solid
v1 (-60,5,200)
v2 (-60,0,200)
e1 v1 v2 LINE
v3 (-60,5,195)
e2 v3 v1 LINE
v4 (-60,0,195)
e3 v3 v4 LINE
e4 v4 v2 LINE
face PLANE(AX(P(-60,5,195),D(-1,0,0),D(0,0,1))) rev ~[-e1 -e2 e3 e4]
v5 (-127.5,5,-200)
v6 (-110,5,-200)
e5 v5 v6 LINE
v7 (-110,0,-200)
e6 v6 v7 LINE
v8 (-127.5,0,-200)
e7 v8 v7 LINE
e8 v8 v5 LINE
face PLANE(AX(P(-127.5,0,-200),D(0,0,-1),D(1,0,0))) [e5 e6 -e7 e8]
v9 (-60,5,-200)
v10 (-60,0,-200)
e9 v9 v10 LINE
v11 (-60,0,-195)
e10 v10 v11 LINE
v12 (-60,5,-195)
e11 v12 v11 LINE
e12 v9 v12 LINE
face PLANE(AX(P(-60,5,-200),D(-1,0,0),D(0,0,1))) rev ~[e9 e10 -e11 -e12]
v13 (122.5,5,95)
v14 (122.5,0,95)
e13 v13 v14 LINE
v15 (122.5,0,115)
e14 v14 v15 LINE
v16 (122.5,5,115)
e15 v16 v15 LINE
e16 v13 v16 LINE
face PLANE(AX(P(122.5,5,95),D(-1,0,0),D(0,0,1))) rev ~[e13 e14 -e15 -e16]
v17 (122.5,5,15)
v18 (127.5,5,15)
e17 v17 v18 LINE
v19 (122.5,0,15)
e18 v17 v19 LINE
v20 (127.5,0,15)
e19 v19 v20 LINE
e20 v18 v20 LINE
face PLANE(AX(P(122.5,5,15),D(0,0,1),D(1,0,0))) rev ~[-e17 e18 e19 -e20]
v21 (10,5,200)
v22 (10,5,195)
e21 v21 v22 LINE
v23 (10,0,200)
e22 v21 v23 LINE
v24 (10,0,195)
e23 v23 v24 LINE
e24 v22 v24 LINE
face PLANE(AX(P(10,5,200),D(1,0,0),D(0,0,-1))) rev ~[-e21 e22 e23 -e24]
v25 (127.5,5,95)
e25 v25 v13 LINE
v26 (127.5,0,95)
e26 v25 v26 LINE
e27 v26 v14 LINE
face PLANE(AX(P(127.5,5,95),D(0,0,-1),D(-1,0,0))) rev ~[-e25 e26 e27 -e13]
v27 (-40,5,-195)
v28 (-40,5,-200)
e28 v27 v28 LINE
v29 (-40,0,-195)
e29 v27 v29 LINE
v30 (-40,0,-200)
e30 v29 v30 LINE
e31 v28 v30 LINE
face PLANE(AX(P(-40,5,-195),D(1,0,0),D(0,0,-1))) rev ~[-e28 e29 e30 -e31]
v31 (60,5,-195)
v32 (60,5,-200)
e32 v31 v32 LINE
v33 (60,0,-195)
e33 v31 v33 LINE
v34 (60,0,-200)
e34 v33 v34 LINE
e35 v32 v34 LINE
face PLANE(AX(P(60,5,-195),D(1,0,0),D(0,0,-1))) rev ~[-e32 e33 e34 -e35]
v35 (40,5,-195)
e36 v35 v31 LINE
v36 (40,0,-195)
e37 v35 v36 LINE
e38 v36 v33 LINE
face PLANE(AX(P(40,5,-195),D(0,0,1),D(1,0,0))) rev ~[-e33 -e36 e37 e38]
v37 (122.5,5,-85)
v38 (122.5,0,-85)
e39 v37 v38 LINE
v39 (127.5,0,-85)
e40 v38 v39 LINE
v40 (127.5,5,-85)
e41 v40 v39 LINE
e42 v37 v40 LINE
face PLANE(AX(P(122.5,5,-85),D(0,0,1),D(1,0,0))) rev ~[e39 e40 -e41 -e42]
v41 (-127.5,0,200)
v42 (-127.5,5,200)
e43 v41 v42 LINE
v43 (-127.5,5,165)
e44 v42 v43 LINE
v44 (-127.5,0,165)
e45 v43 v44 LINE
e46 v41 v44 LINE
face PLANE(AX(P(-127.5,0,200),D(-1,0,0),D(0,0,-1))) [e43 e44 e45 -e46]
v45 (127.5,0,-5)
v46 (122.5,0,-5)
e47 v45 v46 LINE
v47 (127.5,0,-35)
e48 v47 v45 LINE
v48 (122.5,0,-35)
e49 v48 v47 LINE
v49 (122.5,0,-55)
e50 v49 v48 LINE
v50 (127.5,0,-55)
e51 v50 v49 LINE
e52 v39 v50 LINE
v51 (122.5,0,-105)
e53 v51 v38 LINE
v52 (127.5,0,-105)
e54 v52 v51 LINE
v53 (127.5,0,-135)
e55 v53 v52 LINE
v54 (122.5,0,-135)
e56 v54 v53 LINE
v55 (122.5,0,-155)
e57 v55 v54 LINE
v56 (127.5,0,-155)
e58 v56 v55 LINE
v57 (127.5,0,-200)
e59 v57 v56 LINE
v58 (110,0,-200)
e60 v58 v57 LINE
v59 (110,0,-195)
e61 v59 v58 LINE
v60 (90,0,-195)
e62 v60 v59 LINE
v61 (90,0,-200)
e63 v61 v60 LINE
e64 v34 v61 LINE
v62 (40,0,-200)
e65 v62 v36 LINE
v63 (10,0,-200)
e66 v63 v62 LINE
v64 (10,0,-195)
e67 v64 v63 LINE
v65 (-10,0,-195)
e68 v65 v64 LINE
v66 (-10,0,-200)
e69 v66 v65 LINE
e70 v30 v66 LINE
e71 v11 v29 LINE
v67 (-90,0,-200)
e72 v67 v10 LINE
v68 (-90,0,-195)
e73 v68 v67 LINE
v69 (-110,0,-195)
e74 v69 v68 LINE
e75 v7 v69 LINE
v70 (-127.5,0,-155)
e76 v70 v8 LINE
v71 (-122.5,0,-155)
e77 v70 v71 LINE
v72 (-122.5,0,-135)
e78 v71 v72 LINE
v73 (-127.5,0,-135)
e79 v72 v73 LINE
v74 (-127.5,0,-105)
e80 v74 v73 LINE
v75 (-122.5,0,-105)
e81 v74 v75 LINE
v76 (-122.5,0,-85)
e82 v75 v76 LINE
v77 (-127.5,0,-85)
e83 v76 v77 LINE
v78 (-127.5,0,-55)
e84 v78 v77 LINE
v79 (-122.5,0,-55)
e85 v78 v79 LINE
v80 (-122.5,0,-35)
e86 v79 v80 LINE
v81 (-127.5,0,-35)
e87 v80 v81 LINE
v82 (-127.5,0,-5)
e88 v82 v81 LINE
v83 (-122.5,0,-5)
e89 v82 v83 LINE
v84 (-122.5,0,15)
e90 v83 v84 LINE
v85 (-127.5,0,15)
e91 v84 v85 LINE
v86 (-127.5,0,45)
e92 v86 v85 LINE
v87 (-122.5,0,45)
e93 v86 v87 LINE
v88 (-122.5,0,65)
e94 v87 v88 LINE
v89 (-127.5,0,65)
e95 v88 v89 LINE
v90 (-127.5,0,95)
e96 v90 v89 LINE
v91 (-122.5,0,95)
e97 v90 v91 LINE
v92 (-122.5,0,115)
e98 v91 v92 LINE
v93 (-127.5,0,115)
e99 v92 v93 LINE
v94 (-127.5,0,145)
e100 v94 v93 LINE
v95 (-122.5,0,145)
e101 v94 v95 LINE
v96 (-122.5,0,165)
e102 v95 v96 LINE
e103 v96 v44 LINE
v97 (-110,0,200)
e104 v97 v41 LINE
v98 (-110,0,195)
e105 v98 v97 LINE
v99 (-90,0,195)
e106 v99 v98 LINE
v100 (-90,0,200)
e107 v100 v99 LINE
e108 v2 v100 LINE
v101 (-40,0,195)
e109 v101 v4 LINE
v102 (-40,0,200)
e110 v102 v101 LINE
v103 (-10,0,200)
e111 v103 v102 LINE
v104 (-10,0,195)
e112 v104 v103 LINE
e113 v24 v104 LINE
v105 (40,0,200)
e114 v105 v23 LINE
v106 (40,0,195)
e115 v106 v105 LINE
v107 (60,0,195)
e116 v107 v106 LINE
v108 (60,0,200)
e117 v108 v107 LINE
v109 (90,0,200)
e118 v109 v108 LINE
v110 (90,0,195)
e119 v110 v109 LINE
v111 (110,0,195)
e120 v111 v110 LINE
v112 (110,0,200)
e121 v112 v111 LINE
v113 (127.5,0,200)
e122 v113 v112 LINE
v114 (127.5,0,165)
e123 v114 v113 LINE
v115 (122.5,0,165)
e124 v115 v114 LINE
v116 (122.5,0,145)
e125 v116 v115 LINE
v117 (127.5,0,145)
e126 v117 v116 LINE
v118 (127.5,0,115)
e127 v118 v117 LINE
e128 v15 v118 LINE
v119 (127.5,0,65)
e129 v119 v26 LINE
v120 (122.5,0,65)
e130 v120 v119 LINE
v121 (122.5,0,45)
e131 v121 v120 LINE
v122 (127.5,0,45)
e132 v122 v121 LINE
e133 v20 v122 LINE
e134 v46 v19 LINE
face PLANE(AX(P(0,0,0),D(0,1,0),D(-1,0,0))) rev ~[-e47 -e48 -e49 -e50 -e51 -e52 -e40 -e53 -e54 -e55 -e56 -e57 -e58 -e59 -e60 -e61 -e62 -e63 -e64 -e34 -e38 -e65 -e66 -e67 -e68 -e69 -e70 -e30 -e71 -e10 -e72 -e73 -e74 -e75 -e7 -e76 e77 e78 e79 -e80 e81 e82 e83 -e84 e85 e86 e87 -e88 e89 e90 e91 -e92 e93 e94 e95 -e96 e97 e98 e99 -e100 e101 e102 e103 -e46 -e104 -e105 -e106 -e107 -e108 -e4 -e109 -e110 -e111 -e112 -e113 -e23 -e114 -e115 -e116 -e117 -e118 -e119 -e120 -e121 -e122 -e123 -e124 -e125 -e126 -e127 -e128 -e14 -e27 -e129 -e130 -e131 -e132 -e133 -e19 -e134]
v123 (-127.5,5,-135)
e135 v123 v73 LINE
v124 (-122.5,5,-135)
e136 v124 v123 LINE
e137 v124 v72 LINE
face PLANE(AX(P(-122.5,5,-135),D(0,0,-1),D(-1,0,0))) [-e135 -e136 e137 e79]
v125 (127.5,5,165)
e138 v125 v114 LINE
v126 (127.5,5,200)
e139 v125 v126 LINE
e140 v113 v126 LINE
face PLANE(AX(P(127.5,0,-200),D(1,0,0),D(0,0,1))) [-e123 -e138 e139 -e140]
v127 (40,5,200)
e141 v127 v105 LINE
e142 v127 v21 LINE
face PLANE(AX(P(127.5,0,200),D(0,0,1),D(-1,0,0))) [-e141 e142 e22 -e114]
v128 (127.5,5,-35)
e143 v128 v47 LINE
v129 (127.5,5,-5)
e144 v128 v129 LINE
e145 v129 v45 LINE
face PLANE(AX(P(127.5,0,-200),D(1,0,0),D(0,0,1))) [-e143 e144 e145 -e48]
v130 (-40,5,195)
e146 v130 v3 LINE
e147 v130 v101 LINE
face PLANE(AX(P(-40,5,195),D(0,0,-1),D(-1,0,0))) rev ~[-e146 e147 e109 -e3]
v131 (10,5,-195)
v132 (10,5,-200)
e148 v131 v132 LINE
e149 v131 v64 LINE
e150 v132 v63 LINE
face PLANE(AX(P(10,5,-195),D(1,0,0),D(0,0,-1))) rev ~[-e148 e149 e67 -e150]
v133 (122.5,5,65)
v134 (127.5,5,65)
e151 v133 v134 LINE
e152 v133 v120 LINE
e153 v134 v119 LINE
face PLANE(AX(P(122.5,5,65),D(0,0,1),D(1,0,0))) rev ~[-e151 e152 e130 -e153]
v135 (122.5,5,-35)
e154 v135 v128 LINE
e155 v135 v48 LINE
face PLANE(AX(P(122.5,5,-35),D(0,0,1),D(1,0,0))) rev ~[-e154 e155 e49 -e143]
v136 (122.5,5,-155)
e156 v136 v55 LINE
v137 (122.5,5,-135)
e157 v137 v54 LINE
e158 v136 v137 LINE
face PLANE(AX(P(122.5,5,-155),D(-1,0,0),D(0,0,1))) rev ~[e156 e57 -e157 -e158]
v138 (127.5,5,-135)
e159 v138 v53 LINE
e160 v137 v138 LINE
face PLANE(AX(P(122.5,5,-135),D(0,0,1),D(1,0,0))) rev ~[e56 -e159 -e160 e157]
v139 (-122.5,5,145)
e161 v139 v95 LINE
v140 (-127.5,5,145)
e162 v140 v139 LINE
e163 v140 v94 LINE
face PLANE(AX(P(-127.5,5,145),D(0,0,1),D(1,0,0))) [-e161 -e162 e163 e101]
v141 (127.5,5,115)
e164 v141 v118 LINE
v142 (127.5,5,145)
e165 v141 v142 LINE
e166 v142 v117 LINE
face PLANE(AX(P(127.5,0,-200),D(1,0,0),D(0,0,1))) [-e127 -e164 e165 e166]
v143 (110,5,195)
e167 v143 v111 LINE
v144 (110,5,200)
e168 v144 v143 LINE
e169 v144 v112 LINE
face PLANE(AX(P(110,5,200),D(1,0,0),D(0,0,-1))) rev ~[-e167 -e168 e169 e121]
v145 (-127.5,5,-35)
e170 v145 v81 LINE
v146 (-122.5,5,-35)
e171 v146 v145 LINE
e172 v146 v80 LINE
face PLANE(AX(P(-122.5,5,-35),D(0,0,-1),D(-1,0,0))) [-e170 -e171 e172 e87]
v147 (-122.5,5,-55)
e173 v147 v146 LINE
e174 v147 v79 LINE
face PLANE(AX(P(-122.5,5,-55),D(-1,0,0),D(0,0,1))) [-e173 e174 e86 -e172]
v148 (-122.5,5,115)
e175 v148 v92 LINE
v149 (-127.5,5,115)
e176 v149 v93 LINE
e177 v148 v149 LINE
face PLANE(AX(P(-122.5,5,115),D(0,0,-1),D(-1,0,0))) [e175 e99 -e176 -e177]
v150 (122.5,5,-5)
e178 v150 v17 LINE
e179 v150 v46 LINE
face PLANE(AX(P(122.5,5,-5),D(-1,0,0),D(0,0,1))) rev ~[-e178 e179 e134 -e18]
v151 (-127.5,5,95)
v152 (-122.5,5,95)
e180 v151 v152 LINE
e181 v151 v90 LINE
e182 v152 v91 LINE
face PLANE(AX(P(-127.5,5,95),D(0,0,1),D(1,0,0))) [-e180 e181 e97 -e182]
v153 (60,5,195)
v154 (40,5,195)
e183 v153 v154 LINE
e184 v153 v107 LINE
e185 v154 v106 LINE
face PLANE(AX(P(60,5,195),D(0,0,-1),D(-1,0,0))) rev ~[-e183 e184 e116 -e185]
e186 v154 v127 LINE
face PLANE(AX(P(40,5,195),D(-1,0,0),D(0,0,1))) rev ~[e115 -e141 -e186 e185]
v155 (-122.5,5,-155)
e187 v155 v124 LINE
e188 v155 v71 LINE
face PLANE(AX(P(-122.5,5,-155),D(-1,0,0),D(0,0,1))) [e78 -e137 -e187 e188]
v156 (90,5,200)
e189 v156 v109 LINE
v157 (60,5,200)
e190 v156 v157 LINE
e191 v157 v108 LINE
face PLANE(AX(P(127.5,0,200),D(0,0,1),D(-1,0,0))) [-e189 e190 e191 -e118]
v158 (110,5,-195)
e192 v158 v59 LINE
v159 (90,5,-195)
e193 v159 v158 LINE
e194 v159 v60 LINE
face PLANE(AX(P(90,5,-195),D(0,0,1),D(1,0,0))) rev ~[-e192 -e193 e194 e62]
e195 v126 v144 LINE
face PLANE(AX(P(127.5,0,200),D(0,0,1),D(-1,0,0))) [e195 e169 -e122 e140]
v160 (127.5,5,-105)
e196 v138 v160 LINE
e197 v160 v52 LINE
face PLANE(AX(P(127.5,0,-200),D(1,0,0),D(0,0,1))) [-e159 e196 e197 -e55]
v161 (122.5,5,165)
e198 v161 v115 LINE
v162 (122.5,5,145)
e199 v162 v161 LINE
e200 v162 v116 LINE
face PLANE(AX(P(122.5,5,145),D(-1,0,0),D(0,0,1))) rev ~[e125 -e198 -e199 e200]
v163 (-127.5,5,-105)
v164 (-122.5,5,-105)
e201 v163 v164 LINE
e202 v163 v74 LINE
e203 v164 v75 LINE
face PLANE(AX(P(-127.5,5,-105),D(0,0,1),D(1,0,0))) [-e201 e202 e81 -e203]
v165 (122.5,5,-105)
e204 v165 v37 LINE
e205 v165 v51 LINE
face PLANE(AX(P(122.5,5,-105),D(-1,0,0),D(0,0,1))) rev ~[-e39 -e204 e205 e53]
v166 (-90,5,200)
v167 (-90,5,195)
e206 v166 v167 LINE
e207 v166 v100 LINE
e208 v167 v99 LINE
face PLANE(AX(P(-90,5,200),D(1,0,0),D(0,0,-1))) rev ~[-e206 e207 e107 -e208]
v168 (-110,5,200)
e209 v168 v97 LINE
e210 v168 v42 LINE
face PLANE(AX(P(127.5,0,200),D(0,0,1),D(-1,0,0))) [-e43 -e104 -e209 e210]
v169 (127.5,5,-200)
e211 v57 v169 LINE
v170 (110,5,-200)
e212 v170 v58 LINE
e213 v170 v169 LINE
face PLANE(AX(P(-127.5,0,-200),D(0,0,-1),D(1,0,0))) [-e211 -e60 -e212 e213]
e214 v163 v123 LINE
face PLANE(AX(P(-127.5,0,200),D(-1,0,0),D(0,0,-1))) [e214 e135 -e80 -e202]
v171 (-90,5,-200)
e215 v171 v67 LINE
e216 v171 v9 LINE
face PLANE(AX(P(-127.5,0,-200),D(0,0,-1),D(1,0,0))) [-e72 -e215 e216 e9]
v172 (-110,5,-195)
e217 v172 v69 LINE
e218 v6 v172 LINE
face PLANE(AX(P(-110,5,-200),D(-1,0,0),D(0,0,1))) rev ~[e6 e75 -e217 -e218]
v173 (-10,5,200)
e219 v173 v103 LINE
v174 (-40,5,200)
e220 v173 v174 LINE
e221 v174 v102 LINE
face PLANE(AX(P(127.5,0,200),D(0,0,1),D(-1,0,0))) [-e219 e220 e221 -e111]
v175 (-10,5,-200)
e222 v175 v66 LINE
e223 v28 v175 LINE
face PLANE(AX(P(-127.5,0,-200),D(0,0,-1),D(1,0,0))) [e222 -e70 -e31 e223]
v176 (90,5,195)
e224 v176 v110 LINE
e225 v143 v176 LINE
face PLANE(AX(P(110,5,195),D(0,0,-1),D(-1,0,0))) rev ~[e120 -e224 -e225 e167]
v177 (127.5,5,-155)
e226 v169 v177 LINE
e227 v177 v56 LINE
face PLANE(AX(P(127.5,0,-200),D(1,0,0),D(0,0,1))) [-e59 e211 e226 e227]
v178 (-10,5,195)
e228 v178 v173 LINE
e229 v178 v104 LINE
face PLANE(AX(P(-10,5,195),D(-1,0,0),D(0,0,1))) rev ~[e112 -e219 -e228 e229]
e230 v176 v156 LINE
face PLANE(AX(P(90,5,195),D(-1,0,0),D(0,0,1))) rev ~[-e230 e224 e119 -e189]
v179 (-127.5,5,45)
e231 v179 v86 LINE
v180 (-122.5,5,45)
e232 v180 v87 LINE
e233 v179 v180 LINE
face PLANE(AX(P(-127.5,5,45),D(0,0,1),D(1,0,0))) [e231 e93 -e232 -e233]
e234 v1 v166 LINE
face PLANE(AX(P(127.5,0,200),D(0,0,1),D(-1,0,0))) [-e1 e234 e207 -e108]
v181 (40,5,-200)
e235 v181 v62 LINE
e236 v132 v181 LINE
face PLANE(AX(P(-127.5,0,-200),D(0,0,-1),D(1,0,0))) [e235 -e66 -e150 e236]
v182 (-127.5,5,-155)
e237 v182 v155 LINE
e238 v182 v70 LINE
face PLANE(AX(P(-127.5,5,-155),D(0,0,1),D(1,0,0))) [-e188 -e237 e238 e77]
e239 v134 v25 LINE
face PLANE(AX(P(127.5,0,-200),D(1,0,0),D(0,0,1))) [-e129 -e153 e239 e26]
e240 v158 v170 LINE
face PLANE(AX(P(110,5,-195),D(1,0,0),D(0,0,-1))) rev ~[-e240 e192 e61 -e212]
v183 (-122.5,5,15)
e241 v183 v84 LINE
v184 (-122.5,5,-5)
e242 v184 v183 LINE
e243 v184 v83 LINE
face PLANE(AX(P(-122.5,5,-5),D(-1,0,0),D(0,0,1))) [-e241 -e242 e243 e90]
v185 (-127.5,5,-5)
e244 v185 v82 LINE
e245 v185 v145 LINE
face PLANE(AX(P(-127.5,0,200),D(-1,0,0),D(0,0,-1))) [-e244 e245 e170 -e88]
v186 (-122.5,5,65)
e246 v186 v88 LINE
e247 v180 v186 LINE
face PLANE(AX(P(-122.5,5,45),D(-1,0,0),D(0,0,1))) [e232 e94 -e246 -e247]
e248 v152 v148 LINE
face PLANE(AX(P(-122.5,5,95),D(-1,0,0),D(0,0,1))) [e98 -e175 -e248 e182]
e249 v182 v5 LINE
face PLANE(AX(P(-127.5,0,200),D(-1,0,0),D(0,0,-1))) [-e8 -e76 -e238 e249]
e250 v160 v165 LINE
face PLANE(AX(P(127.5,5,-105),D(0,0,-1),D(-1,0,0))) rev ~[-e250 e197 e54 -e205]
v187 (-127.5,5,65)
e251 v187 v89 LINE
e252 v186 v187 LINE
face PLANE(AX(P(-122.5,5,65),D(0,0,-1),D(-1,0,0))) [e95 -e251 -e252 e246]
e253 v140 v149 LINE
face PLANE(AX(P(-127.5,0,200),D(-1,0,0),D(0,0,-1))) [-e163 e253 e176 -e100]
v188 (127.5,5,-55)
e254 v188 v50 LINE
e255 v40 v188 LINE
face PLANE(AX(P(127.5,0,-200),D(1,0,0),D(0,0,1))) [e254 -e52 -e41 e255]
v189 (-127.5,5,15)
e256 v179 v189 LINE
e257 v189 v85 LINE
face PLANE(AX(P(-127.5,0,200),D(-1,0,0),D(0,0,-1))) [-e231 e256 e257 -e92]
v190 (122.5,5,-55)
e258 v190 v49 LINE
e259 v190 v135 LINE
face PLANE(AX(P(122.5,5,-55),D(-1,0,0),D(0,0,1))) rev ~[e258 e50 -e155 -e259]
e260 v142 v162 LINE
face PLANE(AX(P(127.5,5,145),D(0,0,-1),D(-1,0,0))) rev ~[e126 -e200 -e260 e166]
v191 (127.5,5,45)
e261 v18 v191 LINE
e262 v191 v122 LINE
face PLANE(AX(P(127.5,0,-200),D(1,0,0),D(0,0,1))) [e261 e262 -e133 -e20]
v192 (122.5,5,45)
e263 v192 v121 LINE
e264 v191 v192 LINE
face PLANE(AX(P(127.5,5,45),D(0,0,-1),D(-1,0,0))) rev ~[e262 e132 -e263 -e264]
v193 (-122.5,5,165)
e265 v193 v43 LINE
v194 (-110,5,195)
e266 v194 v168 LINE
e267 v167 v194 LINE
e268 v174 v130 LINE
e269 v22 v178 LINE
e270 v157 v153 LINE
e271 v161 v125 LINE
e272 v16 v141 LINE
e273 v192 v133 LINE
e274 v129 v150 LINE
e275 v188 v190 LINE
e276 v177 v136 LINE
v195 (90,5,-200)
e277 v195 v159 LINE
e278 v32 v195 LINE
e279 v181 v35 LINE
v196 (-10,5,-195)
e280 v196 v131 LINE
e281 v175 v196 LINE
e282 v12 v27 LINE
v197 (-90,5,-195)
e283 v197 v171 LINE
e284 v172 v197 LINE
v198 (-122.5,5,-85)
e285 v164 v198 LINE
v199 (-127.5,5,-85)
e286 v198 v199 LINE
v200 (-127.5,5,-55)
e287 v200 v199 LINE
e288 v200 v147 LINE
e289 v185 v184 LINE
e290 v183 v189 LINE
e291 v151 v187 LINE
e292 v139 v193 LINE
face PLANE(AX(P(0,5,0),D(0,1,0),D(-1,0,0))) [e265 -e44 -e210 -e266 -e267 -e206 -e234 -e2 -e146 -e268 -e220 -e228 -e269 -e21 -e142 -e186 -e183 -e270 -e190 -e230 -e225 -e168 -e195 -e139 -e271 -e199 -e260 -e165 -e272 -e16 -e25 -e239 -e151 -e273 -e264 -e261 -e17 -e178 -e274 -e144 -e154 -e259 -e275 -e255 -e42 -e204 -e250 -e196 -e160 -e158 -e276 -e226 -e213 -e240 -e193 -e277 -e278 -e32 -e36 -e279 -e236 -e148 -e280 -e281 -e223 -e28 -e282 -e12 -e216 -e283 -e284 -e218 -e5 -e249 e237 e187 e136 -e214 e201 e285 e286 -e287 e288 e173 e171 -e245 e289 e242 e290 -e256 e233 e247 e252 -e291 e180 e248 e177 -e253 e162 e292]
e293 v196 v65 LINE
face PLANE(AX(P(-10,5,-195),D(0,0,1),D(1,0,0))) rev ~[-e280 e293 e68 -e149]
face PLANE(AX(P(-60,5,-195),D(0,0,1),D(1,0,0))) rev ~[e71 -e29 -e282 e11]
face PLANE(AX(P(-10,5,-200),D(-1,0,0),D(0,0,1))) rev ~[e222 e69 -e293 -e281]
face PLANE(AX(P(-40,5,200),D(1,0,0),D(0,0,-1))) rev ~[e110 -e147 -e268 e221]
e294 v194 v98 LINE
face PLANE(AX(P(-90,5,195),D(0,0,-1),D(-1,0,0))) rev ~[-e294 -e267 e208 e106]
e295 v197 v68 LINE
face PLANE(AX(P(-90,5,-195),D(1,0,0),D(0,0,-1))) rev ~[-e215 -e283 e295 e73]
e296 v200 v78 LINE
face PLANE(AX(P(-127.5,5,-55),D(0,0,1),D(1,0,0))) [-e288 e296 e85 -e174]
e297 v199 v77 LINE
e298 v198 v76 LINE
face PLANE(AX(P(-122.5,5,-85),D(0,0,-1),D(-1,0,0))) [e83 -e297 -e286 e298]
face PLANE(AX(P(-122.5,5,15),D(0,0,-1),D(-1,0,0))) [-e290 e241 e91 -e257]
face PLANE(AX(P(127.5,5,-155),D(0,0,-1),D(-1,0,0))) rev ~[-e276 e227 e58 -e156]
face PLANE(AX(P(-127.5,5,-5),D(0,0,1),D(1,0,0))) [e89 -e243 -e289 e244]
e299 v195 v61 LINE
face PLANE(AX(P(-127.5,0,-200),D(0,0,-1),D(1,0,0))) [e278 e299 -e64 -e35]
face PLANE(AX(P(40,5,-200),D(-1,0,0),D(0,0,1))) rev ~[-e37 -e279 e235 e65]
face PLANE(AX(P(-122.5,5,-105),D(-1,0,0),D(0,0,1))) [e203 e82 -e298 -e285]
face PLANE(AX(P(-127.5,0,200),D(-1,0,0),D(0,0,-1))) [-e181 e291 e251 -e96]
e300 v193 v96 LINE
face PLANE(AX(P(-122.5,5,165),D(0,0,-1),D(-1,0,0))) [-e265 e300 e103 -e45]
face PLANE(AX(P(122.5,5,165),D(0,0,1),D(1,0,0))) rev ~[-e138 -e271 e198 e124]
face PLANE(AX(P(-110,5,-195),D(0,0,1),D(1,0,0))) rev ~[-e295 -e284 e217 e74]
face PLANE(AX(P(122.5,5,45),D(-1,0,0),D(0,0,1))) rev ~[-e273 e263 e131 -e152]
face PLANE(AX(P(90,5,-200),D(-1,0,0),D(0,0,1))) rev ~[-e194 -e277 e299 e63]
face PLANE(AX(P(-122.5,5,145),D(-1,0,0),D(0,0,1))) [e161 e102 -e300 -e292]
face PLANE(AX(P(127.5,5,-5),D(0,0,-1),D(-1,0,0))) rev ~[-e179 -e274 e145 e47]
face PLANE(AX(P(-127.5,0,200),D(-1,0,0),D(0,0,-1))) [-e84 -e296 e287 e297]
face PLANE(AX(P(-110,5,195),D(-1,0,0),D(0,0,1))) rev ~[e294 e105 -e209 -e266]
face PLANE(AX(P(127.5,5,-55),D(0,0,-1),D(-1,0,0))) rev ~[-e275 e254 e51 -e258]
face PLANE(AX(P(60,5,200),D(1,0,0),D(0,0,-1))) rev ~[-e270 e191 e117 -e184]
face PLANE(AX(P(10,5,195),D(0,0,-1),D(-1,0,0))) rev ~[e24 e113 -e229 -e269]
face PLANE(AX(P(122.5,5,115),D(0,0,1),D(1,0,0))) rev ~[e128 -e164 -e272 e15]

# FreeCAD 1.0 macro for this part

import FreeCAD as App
import Part
import Sketcher
from FreeCAD import Vector

doc = App.newDocument("Part")
params = doc.addObject("Spreadsheet::Sheet", "Params")
for row, (alias, value) in enumerate([
    ("sketch1_width", "255 mm"),
    ("sketch1_height", "400 mm"),
    ("pad1_length", "5 mm"),
    ("sketch2_width", "20 mm"),
    ("sketch2_height", "5 mm"),
    ("pocket1_length", "5 mm"),
    ("sketch3_width", "5 mm"),
    ("sketch3_height", "20 mm"),
    ("pocket2_length", "5 mm"),
], start=1):
    params.set(f"A{row}", alias)
    params.set(f"B{row}", "=" + value)
    params.setAlias(f"B{row}", alias)

body = doc.addObject("PartDesign::Body", "Body")

sketch1 = body.newObject("Sketcher::SketchObject", "Sketch")
sketch1.AttachmentSupport = (doc.getObject("XZ_Plane"), [""])
sketch1.MapMode = "FlatFace"
sketch1.addGeometry(Part.LineSegment(Vector(128, -200, 0), Vector(-128, -200, 0)), False)
sketch1.addGeometry(Part.LineSegment(Vector(-128, -200, 0), Vector(-128, 200, 0)), False)
sketch1.addGeometry(Part.LineSegment(Vector(-128, 200, 0), Vector(128, 200, 0)), False)
sketch1.addGeometry(Part.LineSegment(Vector(128, 200, 0), Vector(128, -200, 0)), False)
sketch1.addConstraint(Sketcher.Constraint("Coincident", 0, 2, 1, 1))
sketch1.addConstraint(Sketcher.Constraint("Coincident", 1, 2, 2, 1))
sketch1.addConstraint(Sketcher.Constraint("Coincident", 2, 2, 3, 1))
sketch1.addConstraint(Sketcher.Constraint("Coincident", 3, 2, 0, 1))
sketch1.addConstraint(Sketcher.Constraint("Horizontal", 0))
sketch1.addConstraint(Sketcher.Constraint("Vertical", 1))
sketch1.addConstraint(Sketcher.Constraint("Horizontal", 2))
sketch1.addConstraint(Sketcher.Constraint("Vertical", 3))
sketch1.addConstraint(Sketcher.Constraint("Symmetric", 0, 2, 2, 2, -1, 1))
sketch1.addConstraint(Sketcher.Constraint("DistanceX", 0, 2, 0, 1, 255.0))
sketch1.addConstraint(Sketcher.Constraint("DistanceY", 1, 1, 1, 2, 400.0))
sketch1.setExpression("Constraints[9]", "Params.sketch1_width")
sketch1.setExpression("Constraints[10]", "Params.sketch1_height")
pad1 = body.newObject("PartDesign::Pad", "Pad")
pad1.Profile = sketch1
pad1.setExpression("Length", "Params.pad1_length")
pad1.Reversed = True

sketch2 = body.newObject("Sketcher::SketchObject", "Sketch001")
sketch2.AttachmentSupport = (doc.getObject("XZ_Plane"), [""])
sketch2.MapMode = "FlatFace"
sketch2.AttachmentOffset = App.Placement(Vector(0, 0, -5), App.Rotation())
sketch2.addGeometry(Part.LineSegment(Vector(-110, 195, 0), Vector(-110, 200, 0)), False)
sketch2.addGeometry(Part.LineSegment(Vector(-110, 200, 0), Vector(-90, 200, 0)), False)
sketch2.addGeometry(Part.LineSegment(Vector(-90, 200, 0), Vector(-90, 195, 0)), False)
sketch2.addGeometry(Part.LineSegment(Vector(-90, 195, 0), Vector(-110, 195, 0)), False)
sketch2.addGeometry(Part.LineSegment(Vector(90, 195, 0), Vector(90, 200, 0)), False)
sketch2.addGeometry(Part.LineSegment(Vector(90, 200, 0), Vector(110, 200, 0)), False)
sketch2.addGeometry(Part.LineSegment(Vector(110, 200, 0), Vector(110, 195, 0)), False)
sketch2.addGeometry(Part.LineSegment(Vector(110, 195, 0), Vector(90, 195, 0)), False)
sketch2.addGeometry(Part.LineSegment(Vector(40, 195, 0), Vector(40, 200, 0)), False)
sketch2.addGeometry(Part.LineSegment(Vector(40, 200, 0), Vector(60, 200, 0)), False)
sketch2.addGeometry(Part.LineSegment(Vector(60, 200, 0), Vector(60, 195, 0)), False)
sketch2.addGeometry(Part.LineSegment(Vector(60, 195, 0), Vector(40, 195, 0)), False)
sketch2.addGeometry(Part.LineSegment(Vector(-10, 195, 0), Vector(-10, 200, 0)), False)
sketch2.addGeometry(Part.LineSegment(Vector(-10, 200, 0), Vector(10, 200, 0)), False)
sketch2.addGeometry(Part.LineSegment(Vector(10, 200, 0), Vector(10, 195, 0)), False)
sketch2.addGeometry(Part.LineSegment(Vector(10, 195, 0), Vector(-10, 195, 0)), False)
sketch2.addGeometry(Part.LineSegment(Vector(-60, 195, 0), Vector(-60, 200, 0)), False)
sketch2.addGeometry(Part.LineSegment(Vector(-60, 200, 0), Vector(-40, 200, 0)), False)
sketch2.addGeometry(Part.LineSegment(Vector(-40, 200, 0), Vector(-40, 195, 0)), False)
sketch2.addGeometry(Part.LineSegment(Vector(-40, 195, 0), Vector(-60, 195, 0)), False)
sketch2.addGeometry(Part.LineSegment(Vector(-90, -200, 0), Vector(-110, -200, 0)), False)
sketch2.addGeometry(Part.LineSegment(Vector(-110, -200, 0), Vector(-110, -195, 0)), False)
sketch2.addGeometry(Part.LineSegment(Vector(-110, -195, 0), Vector(-90, -195, 0)), False)
sketch2.addGeometry(Part.LineSegment(Vector(-90, -195, 0), Vector(-90, -200, 0)), False)
sketch2.addGeometry(Part.LineSegment(Vector(-40, -200, 0), Vector(-60, -200, 0)), False)
sketch2.addGeometry(Part.LineSegment(Vector(-60, -200, 0), Vector(-60, -195, 0)), False)
sketch2.addGeometry(Part.LineSegment(Vector(-60, -195, 0), Vector(-40, -195, 0)), False)
sketch2.addGeometry(Part.LineSegment(Vector(-40, -195, 0), Vector(-40, -200, 0)), False)
sketch2.addGeometry(Part.LineSegment(Vector(10, -200, 0), Vector(-10, -200, 0)), False)
sketch2.addGeometry(Part.LineSegment(Vector(-10, -200, 0), Vector(-10, -195, 0)), False)
sketch2.addGeometry(Part.LineSegment(Vector(-10, -195, 0), Vector(10, -195, 0)), False)
sketch2.addGeometry(Part.LineSegment(Vector(10, -195, 0), Vector(10, -200, 0)), False)
sketch2.addGeometry(Part.LineSegment(Vector(60, -200, 0), Vector(40, -200, 0)), False)
sketch2.addGeometry(Part.LineSegment(Vector(40, -200, 0), Vector(40, -195, 0)), False)
sketch2.addGeometry(Part.LineSegment(Vector(40, -195, 0), Vector(60, -195, 0)), False)
sketch2.addGeometry(Part.LineSegment(Vector(60, -195, 0), Vector(60, -200, 0)), False)
sketch2.addGeometry(Part.LineSegment(Vector(110, -200, 0), Vector(90, -200, 0)), False)
sketch2.addGeometry(Part.LineSegment(Vector(90, -200, 0), Vector(90, -195, 0)), False)
sketch2.addGeometry(Part.LineSegment(Vector(90, -195, 0), Vector(110, -195, 0)), False)
sketch2.addGeometry(Part.LineSegment(Vector(110, -195, 0), Vector(110, -200, 0)), False)
sketch2.addConstraint(Sketcher.Constraint("Coincident", 0, 2, 1, 1))
sketch2.addConstraint(Sketcher.Constraint("Coincident", 1, 2, 2, 1))
sketch2.addConstraint(Sketcher.Constraint("Coincident", 2, 2, 3, 1))
sketch2.addConstraint(Sketcher.Constraint("Coincident", 3, 2, 0, 1))
sketch2.addConstraint(Sketcher.Constraint("Coincident", 4, 2, 5, 1))
sketch2.addConstraint(Sketcher.Constraint("Coincident", 5, 2, 6, 1))
sketch2.addConstraint(Sketcher.Constraint("Coincident", 6, 2, 7, 1))
sketch2.addConstraint(Sketcher.Constraint("Coincident", 7, 2, 4, 1))
sketch2.addConstraint(Sketcher.Constraint("Coincident", 8, 2, 9, 1))
sketch2.addConstraint(Sketcher.Constraint("Coincident", 9, 2, 10, 1))
sketch2.addConstraint(Sketcher.Constraint("Coincident", 10, 2, 11, 1))
sketch2.addConstraint(Sketcher.Constraint("Coincident", 11, 2, 8, 1))
sketch2.addConstraint(Sketcher.Constraint("Coincident", 12, 2, 13, 1))
sketch2.addConstraint(Sketcher.Constraint("Coincident", 13, 2, 14, 1))
sketch2.addConstraint(Sketcher.Constraint("Coincident", 14, 2, 15, 1))
sketch2.addConstraint(Sketcher.Constraint("Coincident", 15, 2, 12, 1))
sketch2.addConstraint(Sketcher.Constraint("Coincident", 16, 2, 17, 1))
sketch2.addConstraint(Sketcher.Constraint("Coincident", 17, 2, 18, 1))
sketch2.addConstraint(Sketcher.Constraint("Coincident", 18, 2, 19, 1))
sketch2.addConstraint(Sketcher.Constraint("Coincident", 19, 2, 16, 1))
sketch2.addConstraint(Sketcher.Constraint("Coincident", 20, 2, 21, 1))
sketch2.addConstraint(Sketcher.Constraint("Coincident", 21, 2, 22, 1))
sketch2.addConstraint(Sketcher.Constraint("Coincident", 22, 2, 23, 1))
sketch2.addConstraint(Sketcher.Constraint("Coincident", 23, 2, 20, 1))
sketch2.addConstraint(Sketcher.Constraint("Coincident", 24, 2, 25, 1))
sketch2.addConstraint(Sketcher.Constraint("Coincident", 25, 2, 26, 1))
sketch2.addConstraint(Sketcher.Constraint("Coincident", 26, 2, 27, 1))
sketch2.addConstraint(Sketcher.Constraint("Coincident", 27, 2, 24, 1))
sketch2.addConstraint(Sketcher.Constraint("Coincident", 28, 2, 29, 1))
sketch2.addConstraint(Sketcher.Constraint("Coincident", 29, 2, 30, 1))
sketch2.addConstraint(Sketcher.Constraint("Coincident", 30, 2, 31, 1))
sketch2.addConstraint(Sketcher.Constraint("Coincident", 31, 2, 28, 1))
sketch2.addConstraint(Sketcher.Constraint("Coincident", 32, 2, 33, 1))
sketch2.addConstraint(Sketcher.Constraint("Coincident", 33, 2, 34, 1))
sketch2.addConstraint(Sketcher.Constraint("Coincident", 34, 2, 35, 1))
sketch2.addConstraint(Sketcher.Constraint("Coincident", 35, 2, 32, 1))
sketch2.addConstraint(Sketcher.Constraint("Coincident", 36, 2, 37, 1))
sketch2.addConstraint(Sketcher.Constraint("Coincident", 37, 2, 38, 1))
sketch2.addConstraint(Sketcher.Constraint("Coincident", 38, 2, 39, 1))
sketch2.addConstraint(Sketcher.Constraint("Coincident", 39, 2, 36, 1))
sketch2.addConstraint(Sketcher.Constraint("Vertical", 0))
sketch2.addConstraint(Sketcher.Constraint("Horizontal", 1))
sketch2.addConstraint(Sketcher.Constraint("Vertical", 2))
sketch2.addConstraint(Sketcher.Constraint("Horizontal", 3))
sketch2.addConstraint(Sketcher.Constraint("Vertical", 4))
sketch2.addConstraint(Sketcher.Constraint("Horizontal", 5))
sketch2.addConstraint(Sketcher.Constraint("Vertical", 6))
sketch2.addConstraint(Sketcher.Constraint("Horizontal", 7))
sketch2.addConstraint(Sketcher.Constraint("Vertical", 8))
sketch2.addConstraint(Sketcher.Constraint("Horizontal", 9))
sketch2.addConstraint(Sketcher.Constraint("Vertical", 10))
sketch2.addConstraint(Sketcher.Constraint("Horizontal", 11))
sketch2.addConstraint(Sketcher.Constraint("Vertical", 12))
sketch2.addConstraint(Sketcher.Constraint("Horizontal", 13))
sketch2.addConstraint(Sketcher.Constraint("Vertical", 14))
sketch2.addConstraint(Sketcher.Constraint("Horizontal", 15))
sketch2.addConstraint(Sketcher.Constraint("Vertical", 16))
sketch2.addConstraint(Sketcher.Constraint("Horizontal", 17))
sketch2.addConstraint(Sketcher.Constraint("Vertical", 18))
sketch2.addConstraint(Sketcher.Constraint("Horizontal", 19))
sketch2.addConstraint(Sketcher.Constraint("Horizontal", 20))
sketch2.addConstraint(Sketcher.Constraint("Vertical", 21))
sketch2.addConstraint(Sketcher.Constraint("Horizontal", 22))
sketch2.addConstraint(Sketcher.Constraint("Vertical", 23))
sketch2.addConstraint(Sketcher.Constraint("Horizontal", 24))
sketch2.addConstraint(Sketcher.Constraint("Vertical", 25))
sketch2.addConstraint(Sketcher.Constraint("Horizontal", 26))
sketch2.addConstraint(Sketcher.Constraint("Vertical", 27))
sketch2.addConstraint(Sketcher.Constraint("Horizontal", 28))
sketch2.addConstraint(Sketcher.Constraint("Vertical", 29))
sketch2.addConstraint(Sketcher.Constraint("Horizontal", 30))
sketch2.addConstraint(Sketcher.Constraint("Vertical", 31))
sketch2.addConstraint(Sketcher.Constraint("Horizontal", 32))
sketch2.addConstraint(Sketcher.Constraint("Vertical", 33))
sketch2.addConstraint(Sketcher.Constraint("Horizontal", 34))
sketch2.addConstraint(Sketcher.Constraint("Vertical", 35))
sketch2.addConstraint(Sketcher.Constraint("Horizontal", 36))
sketch2.addConstraint(Sketcher.Constraint("Vertical", 37))
sketch2.addConstraint(Sketcher.Constraint("Horizontal", 38))
sketch2.addConstraint(Sketcher.Constraint("Vertical", 39))
sketch2.addConstraint(Sketcher.Constraint("Symmetric", 5, 2, 20, 2, -1, 1))
sketch2.addConstraint(Sketcher.Constraint("Symmetric", 7, 2, 22, 2, -1, 1))
sketch2.addConstraint(Sketcher.Constraint("Symmetric", 9, 2, 24, 2, -1, 1))
sketch2.addConstraint(Sketcher.Constraint("Symmetric", 11, 2, 26, 2, -1, 1))
sketch2.addConstraint(Sketcher.Constraint("Symmetric", 13, 2, 28, 2, -1, 1))
sketch2.addConstraint(Sketcher.Constraint("Symmetric", 15, 2, 30, 2, -1, 1))
sketch2.addConstraint(Sketcher.Constraint("Symmetric", 17, 2, 32, 2, -1, 1))
sketch2.addConstraint(Sketcher.Constraint("Symmetric", 19, 2, 34, 2, -1, 1))
sketch2.addConstraint(Sketcher.Constraint("Symmetric", 1, 2, 36, 2, -1, 1))
sketch2.addConstraint(Sketcher.Constraint("Symmetric", 3, 2, 38, 2, -1, 1))
sketch2.addConstraint(Sketcher.Constraint("Symmetric", 1, 2, 4, 2, -2))
sketch2.addConstraint(Sketcher.Constraint("Symmetric", 3, 2, 6, 2, -2))
sketch2.addConstraint(Sketcher.Constraint("Symmetric", 9, 2, 16, 2, -2))
sketch2.addConstraint(Sketcher.Constraint("Symmetric", 11, 2, 18, 2, -2))
sketch2.addConstraint(Sketcher.Constraint("Horizontal", 5, 2, 8, 2))
sketch2.addConstraint(Sketcher.Constraint("Horizontal", 7, 2, 10, 2))
sketch2.addConstraint(Sketcher.Constraint("Horizontal", 9, 2, 12, 2))
sketch2.addConstraint(Sketcher.Constraint("Horizontal", 11, 2, 14, 2))
sketch2.addConstraint(Sketcher.Constraint("Vertical", 15, 2, 28, 2))
sketch2.addConstraint(Sketcher.Constraint("Equal", 7, 9))
sketch2.addConstraint(Sketcher.Constraint("Equal", 11, 13))
sketch2.addConstraint(Sketcher.Constraint("DistanceX", 1, 1, 1, 2, 20.0))
sketch2.addConstraint(Sketcher.Constraint("DistanceY", 0, 1, 0, 2, 5.0))
sketch2.addConstraint(Sketcher.Constraint("DistanceX", 8, 2, 4, 2, 50.0))
sketch2.addConstraint(Sketcher.Constraint("DistanceX", 12, 2, 8, 2, 50.0))
sketch2.addConstraint(Sketcher.Constraint("DistanceY", 20, 2, 3, 2, 395.0))
sketch2.setExpression("Constraints[101]", "Params.sketch2_width")
sketch2.setExpression("Constraints[102]", "Params.sketch2_height")
pocket1 = body.newObject("PartDesign::Pocket", "Pocket")
pocket1.Profile = sketch2
pocket1.setExpression("Length", "Params.pocket1_length")
pocket1.Reversed = True

sketch3 = body.newObject("Sketcher::SketchObject", "Sketch002")
sketch3.AttachmentSupport = (doc.getObject("XZ_Plane"), [""])
sketch3.MapMode = "FlatFace"
sketch3.AttachmentOffset = App.Placement(Vector(0, 0, -5), App.Rotation())
sketch3.addGeometry(Part.LineSegment(Vector(-122, -155, 0), Vector(-128, -155, 0)), False)
sketch3.addGeometry(Part.LineSegment(Vector(-128, -155, 0), Vector(-128, -135, 0)), False)
sketch3.addGeometry(Part.LineSegment(Vector(-128, -135, 0), Vector(-122, -135, 0)), False)
sketch3.addGeometry(Part.LineSegment(Vector(-122, -135, 0), Vector(-122, -155, 0)), False)
sketch3.addGeometry(Part.LineSegment(Vector(-122, 145, 0), Vector(-128, 145, 0)), False)
sketch3.addGeometry(Part.LineSegment(Vector(-128, 145, 0), Vector(-128, 165, 0)), False)
sketch3.addGeometry(Part.LineSegment(Vector(-128, 165, 0), Vector(-122, 165, 0)), False)
sketch3.addGeometry(Part.LineSegment(Vector(-122, 165, 0), Vector(-122, 145, 0)), False)
sketch3.addGeometry(Part.LineSegment(Vector(-122, 95, 0), Vector(-128, 95, 0)), False)
sketch3.addGeometry(Part.LineSegment(Vector(-128, 95, 0), Vector(-128, 115, 0)), False)
sketch3.addGeometry(Part.LineSegment(Vector(-128, 115, 0), Vector(-122, 115, 0)), False)
sketch3.addGeometry(Part.LineSegment(Vector(-122, 115, 0), Vector(-122, 95, 0)), False)
sketch3.addGeometry(Part.LineSegment(Vector(-122, 45, 0), Vector(-128, 45, 0)), False)
sketch3.addGeometry(Part.LineSegment(Vector(-128, 45, 0), Vector(-128, 65, 0)), False)
sketch3.addGeometry(Part.LineSegment(Vector(-128, 65, 0), Vector(-122, 65, 0)), False)
sketch3.addGeometry(Part.LineSegment(Vector(-122, 65, 0), Vector(-122, 45, 0)), False)
sketch3.addGeometry(Part.LineSegment(Vector(-122, -5, 0), Vector(-128, -5, 0)), False)
sketch3.addGeometry(Part.LineSegment(Vector(-128, -5, 0), Vector(-128, 15, 0)), False)
sketch3.addGeometry(Part.LineSegment(Vector(-128, 15, 0), Vector(-122, 15, 0)), False)
sketch3.addGeometry(Part.LineSegment(Vector(-122, 15, 0), Vector(-122, -5, 0)), False)
sketch3.addGeometry(Part.LineSegment(Vector(-122, -55, 0), Vector(-128, -55, 0)), False)
sketch3.addGeometry(Part.LineSegment(Vector(-128, -55, 0), Vector(-128, -35, 0)), False)
sketch3.addGeometry(Part.LineSegment(Vector(-128, -35, 0), Vector(-122, -35, 0)), False)
sketch3.addGeometry(Part.LineSegment(Vector(-122, -35, 0), Vector(-122, -55, 0)), False)
sketch3.addGeometry(Part.LineSegment(Vector(-122, -105, 0), Vector(-128, -105, 0)), False)
sketch3.addGeometry(Part.LineSegment(Vector(-128, -105, 0), Vector(-128, -85, 0)), False)
sketch3.addGeometry(Part.LineSegment(Vector(-128, -85, 0), Vector(-122, -85, 0)), False)
sketch3.addGeometry(Part.LineSegment(Vector(-122, -85, 0), Vector(-122, -105, 0)), False)
sketch3.addGeometry(Part.LineSegment(Vector(128, 165, 0), Vector(128, 145, 0)), False)
sketch3.addGeometry(Part.LineSegment(Vector(128, 145, 0), Vector(122, 145, 0)), False)
sketch3.addGeometry(Part.LineSegment(Vector(122, 145, 0), Vector(122, 165, 0)), False)
sketch3.addGeometry(Part.LineSegment(Vector(122, 165, 0), Vector(128, 165, 0)), False)
sketch3.addGeometry(Part.LineSegment(Vector(128, 115, 0), Vector(128, 95, 0)), False)
sketch3.addGeometry(Part.LineSegment(Vector(128, 95, 0), Vector(122, 95, 0)), False)
sketch3.addGeometry(Part.LineSegment(Vector(122, 95, 0), Vector(122, 115, 0)), False)
sketch3.addGeometry(Part.LineSegment(Vector(122, 115, 0), Vector(128, 115, 0)), False)
sketch3.addGeometry(Part.LineSegment(Vector(128, 65, 0), Vector(128, 45, 0)), False)
sketch3.addGeometry(Part.LineSegment(Vector(128, 45, 0), Vector(122, 45, 0)), False)
sketch3.addGeometry(Part.LineSegment(Vector(122, 45, 0), Vector(122, 65, 0)), False)
sketch3.addGeometry(Part.LineSegment(Vector(122, 65, 0), Vector(128, 65, 0)), False)
sketch3.addGeometry(Part.LineSegment(Vector(128, 15, 0), Vector(128, -5, 0)), False)
sketch3.addGeometry(Part.LineSegment(Vector(128, -5, 0), Vector(122, -5, 0)), False)
sketch3.addGeometry(Part.LineSegment(Vector(122, -5, 0), Vector(122, 15, 0)), False)
sketch3.addGeometry(Part.LineSegment(Vector(122, 15, 0), Vector(128, 15, 0)), False)
sketch3.addGeometry(Part.LineSegment(Vector(128, -35, 0), Vector(128, -55, 0)), False)
sketch3.addGeometry(Part.LineSegment(Vector(128, -55, 0), Vector(122, -55, 0)), False)
sketch3.addGeometry(Part.LineSegment(Vector(122, -55, 0), Vector(122, -35, 0)), False)
sketch3.addGeometry(Part.LineSegment(Vector(122, -35, 0), Vector(128, -35, 0)), False)
sketch3.addGeometry(Part.LineSegment(Vector(128, -85, 0), Vector(128, -105, 0)), False)
sketch3.addGeometry(Part.LineSegment(Vector(128, -105, 0), Vector(122, -105, 0)), False)
sketch3.addGeometry(Part.LineSegment(Vector(122, -105, 0), Vector(122, -85, 0)), False)
sketch3.addGeometry(Part.LineSegment(Vector(122, -85, 0), Vector(128, -85, 0)), False)
sketch3.addGeometry(Part.LineSegment(Vector(128, -135, 0), Vector(128, -155, 0)), False)
sketch3.addGeometry(Part.LineSegment(Vector(128, -155, 0), Vector(122, -155, 0)), False)
sketch3.addGeometry(Part.LineSegment(Vector(122, -155, 0), Vector(122, -135, 0)), False)
sketch3.addGeometry(Part.LineSegment(Vector(122, -135, 0), Vector(128, -135, 0)), False)
sketch3.addConstraint(Sketcher.Constraint("Coincident", 0, 2, 1, 1))
sketch3.addConstraint(Sketcher.Constraint("Coincident", 1, 2, 2, 1))
sketch3.addConstraint(Sketcher.Constraint("Coincident", 2, 2, 3, 1))
sketch3.addConstraint(Sketcher.Constraint("Coincident", 3, 2, 0, 1))
sketch3.addConstraint(Sketcher.Constraint("Coincident", 4, 2, 5, 1))
sketch3.addConstraint(Sketcher.Constraint("Coincident", 5, 2, 6, 1))
sketch3.addConstraint(Sketcher.Constraint("Coincident", 6, 2, 7, 1))
sketch3.addConstraint(Sketcher.Constraint("Coincident", 7, 2, 4, 1))
sketch3.addConstraint(Sketcher.Constraint("Coincident", 8, 2, 9, 1))
sketch3.addConstraint(Sketcher.Constraint("Coincident", 9, 2, 10, 1))
sketch3.addConstraint(Sketcher.Constraint("Coincident", 10, 2, 11, 1))
sketch3.addConstraint(Sketcher.Constraint("Coincident", 11, 2, 8, 1))
sketch3.addConstraint(Sketcher.Constraint("Coincident", 12, 2, 13, 1))
sketch3.addConstraint(Sketcher.Constraint("Coincident", 13, 2, 14, 1))
sketch3.addConstraint(Sketcher.Constraint("Coincident", 14, 2, 15, 1))
sketch3.addConstraint(Sketcher.Constraint("Coincident", 15, 2, 12, 1))
sketch3.addConstraint(Sketcher.Constraint("Coincident", 16, 2, 17, 1))
sketch3.addConstraint(Sketcher.Constraint("Coincident", 17, 2, 18, 1))
sketch3.addConstraint(Sketcher.Constraint("Coincident", 18, 2, 19, 1))
sketch3.addConstraint(Sketcher.Constraint("Coincident", 19, 2, 16, 1))
sketch3.addConstraint(Sketcher.Constraint("Coincident", 20, 2, 21, 1))
sketch3.addConstraint(Sketcher.Constraint("Coincident", 21, 2, 22, 1))
sketch3.addConstraint(Sketcher.Constraint("Coincident", 22, 2, 23, 1))
sketch3.addConstraint(Sketcher.Constraint("Coincident", 23, 2, 20, 1))
sketch3.addConstraint(Sketcher.Constraint("Coincident", 24, 2, 25, 1))
sketch3.addConstraint(Sketcher.Constraint("Coincident", 25, 2, 26, 1))
sketch3.addConstraint(Sketcher.Constraint("Coincident", 26, 2, 27, 1))
sketch3.addConstraint(Sketcher.Constraint("Coincident", 27, 2, 24, 1))
sketch3.addConstraint(Sketcher.Constraint("Coincident", 28, 2, 29, 1))
sketch3.addConstraint(Sketcher.Constraint("Coincident", 29, 2, 30, 1))
sketch3.addConstraint(Sketcher.Constraint("Coincident", 30, 2, 31, 1))
sketch3.addConstraint(Sketcher.Constraint("Coincident", 31, 2, 28, 1))
sketch3.addConstraint(Sketcher.Constraint("Coincident", 32, 2, 33, 1))
sketch3.addConstraint(Sketcher.Constraint("Coincident", 33, 2, 34, 1))
sketch3.addConstraint(Sketcher.Constraint("Coincident", 34, 2, 35, 1))
sketch3.addConstraint(Sketcher.Constraint("Coincident", 35, 2, 32, 1))
sketch3.addConstraint(Sketcher.Constraint("Coincident", 36, 2, 37, 1))
sketch3.addConstraint(Sketcher.Constraint("Coincident", 37, 2, 38, 1))
sketch3.addConstraint(Sketcher.Constraint("Coincident", 38, 2, 39, 1))
sketch3.addConstraint(Sketcher.Constraint("Coincident", 39, 2, 36, 1))
sketch3.addConstraint(Sketcher.Constraint("Coincident", 40, 2, 41, 1))
sketch3.addConstraint(Sketcher.Constraint("Coincident", 41, 2, 42, 1))
sketch3.addConstraint(Sketcher.Constraint("Coincident", 42, 2, 43, 1))
sketch3.addConstraint(Sketcher.Constraint("Coincident", 43, 2, 40, 1))
sketch3.addConstraint(Sketcher.Constraint("Coincident", 44, 2, 45, 1))
sketch3.addConstraint(Sketcher.Constraint("Coincident", 45, 2, 46, 1))
sketch3.addConstraint(Sketcher.Constraint("Coincident", 46, 2, 47, 1))
sketch3.addConstraint(Sketcher.Constraint("Coincident", 47, 2, 44, 1))
sketch3.addConstraint(Sketcher.Constraint("Coincident", 48, 2, 49, 1))
sketch3.addConstraint(Sketcher.Constraint("Coincident", 49, 2, 50, 1))
sketch3.addConstraint(Sketcher.Constraint("Coincident", 50, 2, 51, 1))
sketch3.addConstraint(Sketcher.Constraint("Coincident", 51, 2, 48, 1))
sketch3.addConstraint(Sketcher.Constraint("Coincident", 52, 2, 53, 1))
sketch3.addConstraint(Sketcher.Constraint("Coincident", 53, 2, 54, 1))
sketch3.addConstraint(Sketcher.Constraint("Coincident", 54, 2, 55, 1))
sketch3.addConstraint(Sketcher.Constraint("Coincident", 55, 2, 52, 1))
sketch3.addConstraint(Sketcher.Constraint("Horizontal", 0))
sketch3.addConstraint(Sketcher.Constraint("Vertical", 1))
sketch3.addConstraint(Sketcher.Constraint("Horizontal", 2))
sketch3.addConstraint(Sketcher.Constraint("Vertical", 3))
sketch3.addConstraint(Sketcher.Constraint("Horizontal", 4))
sketch3.addConstraint(Sketcher.Constraint("Vertical", 5))
sketch3.addConstraint(Sketcher.Constraint("Horizontal", 6))
sketch3.addConstraint(Sketcher.Constraint("Vertical", 7))
sketch3.addConstraint(Sketcher.Constraint("Horizontal", 8))
sketch3.addConstraint(Sketcher.Constraint("Vertical", 9))
sketch3.addConstraint(Sketcher.Constraint("Horizontal", 10))
sketch3.addConstraint(Sketcher.Constraint("Vertical", 11))
sketch3.addConstraint(Sketcher.Constraint("Horizontal", 12))
sketch3.addConstraint(Sketcher.Constraint("Vertical", 13))
sketch3.addConstraint(Sketcher.Constraint("Horizontal", 14))
sketch3.addConstraint(Sketcher.Constraint("Vertical", 15))
sketch3.addConstraint(Sketcher.Constraint("Horizontal", 16))
sketch3.addConstraint(Sketcher.Constraint("Vertical", 17))
sketch3.addConstraint(Sketcher.Constraint("Horizontal", 18))
sketch3.addConstraint(Sketcher.Constraint("Vertical", 19))
sketch3.addConstraint(Sketcher.Constraint("Horizontal", 20))
sketch3.addConstraint(Sketcher.Constraint("Vertical", 21))
sketch3.addConstraint(Sketcher.Constraint("Horizontal", 22))
sketch3.addConstraint(Sketcher.Constraint("Vertical", 23))
sketch3.addConstraint(Sketcher.Constraint("Horizontal", 24))
sketch3.addConstraint(Sketcher.Constraint("Vertical", 25))
sketch3.addConstraint(Sketcher.Constraint("Horizontal", 26))
sketch3.addConstraint(Sketcher.Constraint("Vertical", 27))
sketch3.addConstraint(Sketcher.Constraint("Vertical", 28))
sketch3.addConstraint(Sketcher.Constraint("Horizontal", 29))
sketch3.addConstraint(Sketcher.Constraint("Vertical", 30))
sketch3.addConstraint(Sketcher.Constraint("Horizontal", 31))
sketch3.addConstraint(Sketcher.Constraint("Vertical", 32))
sketch3.addConstraint(Sketcher.Constraint("Horizontal", 33))
sketch3.addConstraint(Sketcher.Constraint("Vertical", 34))
sketch3.addConstraint(Sketcher.Constraint("Horizontal", 35))
sketch3.addConstraint(Sketcher.Constraint("Vertical", 36))
sketch3.addConstraint(Sketcher.Constraint("Horizontal", 37))
sketch3.addConstraint(Sketcher.Constraint("Vertical", 38))
sketch3.addConstraint(Sketcher.Constraint("Horizontal", 39))
sketch3.addConstraint(Sketcher.Constraint("Vertical", 40))
sketch3.addConstraint(Sketcher.Constraint("Horizontal", 41))
sketch3.addConstraint(Sketcher.Constraint("Vertical", 42))
sketch3.addConstraint(Sketcher.Constraint("Horizontal", 43))
sketch3.addConstraint(Sketcher.Constraint("Vertical", 44))
sketch3.addConstraint(Sketcher.Constraint("Horizontal", 45))
sketch3.addConstraint(Sketcher.Constraint("Vertical", 46))
sketch3.addConstraint(Sketcher.Constraint("Horizontal", 47))
sketch3.addConstraint(Sketcher.Constraint("Vertical", 48))
sketch3.addConstraint(Sketcher.Constraint("Horizontal", 49))
sketch3.addConstraint(Sketcher.Constraint("Vertical", 50))
sketch3.addConstraint(Sketcher.Constraint("Horizontal", 51))
sketch3.addConstraint(Sketcher.Constraint("Vertical", 52))
sketch3.addConstraint(Sketcher.Constraint("Horizontal", 53))
sketch3.addConstraint(Sketcher.Constraint("Vertical", 54))
sketch3.addConstraint(Sketcher.Constraint("Horizontal", 55))
sketch3.addConstraint(Sketcher.Constraint("Symmetric", 4, 2, 28, 2, -2))
sketch3.addConstraint(Sketcher.Constraint("Symmetric", 6, 2, 30, 2, -2))
sketch3.addConstraint(Sketcher.Constraint("Symmetric", 8, 2, 32, 2, -2))
sketch3.addConstraint(Sketcher.Constraint("Symmetric", 10, 2, 34, 2, -2))
sketch3.addConstraint(Sketcher.Constraint("Symmetric", 12, 2, 36, 2, -2))
sketch3.addConstraint(Sketcher.Constraint("Symmetric", 14, 2, 38, 2, -2))
sketch3.addConstraint(Sketcher.Constraint("Symmetric", 16, 2, 40, 2, -2))
sketch3.addConstraint(Sketcher.Constraint("Symmetric", 18, 2, 42, 2, -2))
sketch3.addConstraint(Sketcher.Constraint("Symmetric", 20, 2, 44, 2, -2))
sketch3.addConstraint(Sketcher.Constraint("Symmetric", 22, 2, 46, 2, -2))
sketch3.addConstraint(Sketcher.Constraint("Symmetric", 24, 2, 48, 2, -2))
sketch3.addConstraint(Sketcher.Constraint("Symmetric", 26, 2, 50, 2, -2))
sketch3.addConstraint(Sketcher.Constraint("Symmetric", 0, 2, 52, 2, -2))
sketch3.addConstraint(Sketcher.Constraint("Symmetric", 2, 2, 54, 2, -2))
sketch3.addConstraint(Sketcher.Constraint("Vertical", 1, 2, 4, 2))
sketch3.addConstraint(Sketcher.Constraint("Vertical", 3, 2, 6, 2))
sketch3.addConstraint(Sketcher.Constraint("Vertical", 5, 2, 8, 2))
sketch3.addConstraint(Sketcher.Constraint("Vertical", 7, 2, 10, 2))
sketch3.addConstraint(Sketcher.Constraint("Vertical", 9, 2, 12, 2))
sketch3.addConstraint(Sketcher.Constraint("Vertical", 11, 2, 14, 2))
sketch3.addConstraint(Sketcher.Constraint("Vertical", 13, 2, 16, 2))
sketch3.addConstraint(Sketcher.Constraint("Vertical", 15, 2, 18, 2))
sketch3.addConstraint(Sketcher.Constraint("Vertical", 17, 2, 20, 2))
sketch3.addConstraint(Sketcher.Constraint("Vertical", 19, 2, 22, 2))
sketch3.addConstraint(Sketcher.Constraint("Vertical", 21, 2, 24, 2))
sketch3.addConstraint(Sketcher.Constraint("Vertical", 23, 2, 26, 2))
sketch3.addConstraint(Sketcher.Constraint("Equal", 3, 5))
sketch3.addConstraint(Sketcher.Constraint("Equal", 7, 9))
sketch3.addConstraint(Sketcher.Constraint("Equal", 11, 13))
sketch3.addConstraint(Sketcher.Constraint("Equal", 15, 17))
sketch3.addConstraint(Sketcher.Constraint("Equal", 19, 21))
sketch3.addConstraint(Sketcher.Constraint("Equal", 23, 25))
sketch3.addConstraint(Sketcher.Constraint("DistanceX", 0, 2, 0, 1, 5.0))
sketch3.addConstraint(Sketcher.Constraint("DistanceY", 1, 1, 1, 2, 20.0))
sketch3.addConstraint(Sketcher.Constraint("DistanceY", 16, 2, -1, 1, 5.0))
sketch3.addConstraint(Sketcher.Constraint("DistanceY", 21, 2, -1, 1, 35.0))
sketch3.addConstraint(Sketcher.Constraint("DistanceY", 8, 2, 4, 2, 50.0))
sketch3.addConstraint(Sketcher.Constraint("DistanceY", 12, 2, 8, 2, 50.0))
sketch3.addConstraint(Sketcher.Constraint("DistanceY", 16, 2, 12, 2, 50.0))
sketch3.addConstraint(Sketcher.Constraint("DistanceY", 0, 2, 24, 2, 50.0))
sketch3.addConstraint(Sketcher.Constraint("DistanceY", 24, 2, 20, 2, 50.0))
sketch3.addConstraint(Sketcher.Constraint("DistanceX", 7, 2, 28, 2, 250.0))
sketch3.setExpression("Constraints[144]", "Params.sketch3_width")
sketch3.setExpression("Constraints[145]", "Params.sketch3_height")
pocket2 = body.newObject("PartDesign::Pocket", "Pocket001")
pocket2.Profile = sketch3
pocket2.setExpression("Length", "Params.pocket2_length")
pocket2.Reversed = True

doc.recompute()
